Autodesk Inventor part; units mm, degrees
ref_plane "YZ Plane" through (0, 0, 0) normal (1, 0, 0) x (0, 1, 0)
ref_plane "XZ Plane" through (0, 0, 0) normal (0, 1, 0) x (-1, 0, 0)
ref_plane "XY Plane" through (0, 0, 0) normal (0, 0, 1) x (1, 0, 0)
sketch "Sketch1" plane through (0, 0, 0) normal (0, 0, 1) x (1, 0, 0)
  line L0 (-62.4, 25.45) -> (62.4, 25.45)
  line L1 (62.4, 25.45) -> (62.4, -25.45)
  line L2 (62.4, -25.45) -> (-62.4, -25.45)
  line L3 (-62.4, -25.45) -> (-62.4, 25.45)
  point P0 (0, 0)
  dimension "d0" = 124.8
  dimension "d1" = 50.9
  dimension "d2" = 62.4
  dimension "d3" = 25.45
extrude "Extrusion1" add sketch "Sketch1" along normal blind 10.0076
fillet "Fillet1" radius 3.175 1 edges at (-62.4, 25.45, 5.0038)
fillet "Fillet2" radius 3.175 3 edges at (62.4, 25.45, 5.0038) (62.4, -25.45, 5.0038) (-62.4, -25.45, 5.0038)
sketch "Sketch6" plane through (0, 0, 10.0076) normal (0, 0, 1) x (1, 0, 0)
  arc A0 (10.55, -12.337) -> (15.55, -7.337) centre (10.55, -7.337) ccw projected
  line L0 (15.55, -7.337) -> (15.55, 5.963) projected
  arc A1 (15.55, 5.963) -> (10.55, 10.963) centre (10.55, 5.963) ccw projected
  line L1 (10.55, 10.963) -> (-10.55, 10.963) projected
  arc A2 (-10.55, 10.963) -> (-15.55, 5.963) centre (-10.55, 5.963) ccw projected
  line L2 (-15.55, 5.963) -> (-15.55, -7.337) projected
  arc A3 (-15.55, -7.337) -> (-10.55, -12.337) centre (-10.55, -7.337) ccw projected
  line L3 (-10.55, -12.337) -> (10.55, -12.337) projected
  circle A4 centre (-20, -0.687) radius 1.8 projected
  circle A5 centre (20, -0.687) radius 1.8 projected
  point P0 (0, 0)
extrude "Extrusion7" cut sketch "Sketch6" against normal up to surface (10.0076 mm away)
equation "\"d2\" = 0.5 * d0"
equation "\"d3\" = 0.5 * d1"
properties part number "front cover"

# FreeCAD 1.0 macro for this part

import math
import FreeCAD as App
import Part
import Sketcher
from FreeCAD import Vector
Q = App.Units.Quantity


def edges_at(feature, points):
    """Names of the edges that pass closest to the given points."""
    edges = feature.Shape.Edges
    near = lambda p: min(range(len(edges)), key=lambda i: edges[i].distToShape(Part.Vertex(*p))[0])
    return sorted({f"Edge{near(p) + 1}" for p in points})


def add_polygon(sketch, points):
    """Adds a closed chain of lines whose ends are joined by coincident constraints."""
    first, n = sketch.GeometryCount, len(points)
    for a, b in zip(points, points[1:] + points[:1]):
        sketch.addGeometry(Part.LineSegment(App.Vector(*a, 0), App.Vector(*b, 0)), False)
    for i in range(n):
        sketch.addConstraint(Sketcher.Constraint("Coincident", first + i, 2, first + (i + 1) % n, 1))

doc = App.newDocument("Part")
body = doc.addObject("PartDesign::Body", "Body")

# Sketch on XY plane
sketch1 = body.newObject("Sketcher::SketchObject", "Sketch")
sketch1.AttachmentSupport = (doc.getObject("XY_Plane"), [""])
sketch1.MapMode = "FlatFace"
add_polygon(sketch1, [(62, 25), (-62, 25), (-62, -25), (62, -25)])  # lines 0-3
sketch1.addConstraint([
    Sketcher.Constraint("Horizontal", 0),
    Sketcher.Constraint("Vertical", 1),
    Sketcher.Constraint("Horizontal", 2),
    Sketcher.Constraint("Vertical", 3),
    Sketcher.Constraint("Symmetric", 0, 2, 2, 2, -1, 1),
    Sketcher.Constraint("DistanceX", 0, 2, 0, 1, Q("124.8 mm")),
    Sketcher.Constraint("DistanceY", 1, 2, 1, 1, Q("50.9 mm")),
])
pad1 = body.newObject("PartDesign::Pad", "Pad")
pad1.Profile = sketch1
pad1.Length = 10.0076
doc.recompute()

fillet = body.newObject("PartDesign::Fillet", "Fillet")
fillet.Base = (pad1, edges_at(pad1, [(-62.4, 25.45, 5.004)]))
fillet.Radius = 3.175
doc.recompute()

fillet2 = body.newObject("PartDesign::Fillet", "Fillet001")
fillet2.Base = (fillet, edges_at(fillet, [(62.4, 25.45, 5.004), (62.4, -25.45, 5.004), (-62.4, -25.45, 5.004)]))
fillet2.Radius = 3.175

# Sketch on XY plane
sketch2 = body.newObject("Sketcher::SketchObject", "Sketch001")
sketch2.AttachmentSupport = (doc.getObject("XY_Plane"), [""])
sketch2.MapMode = "FlatFace"
sketch2.AttachmentOffset = App.Placement(Vector(0, 0, 10.0076), App.Rotation())
sketch2.addGeometry([
    Part.LineSegment(Vector(-10.6, -12.3, 0), Vector(10.6, -12.3, 0)),  # 0
    Part.ArcOfCircle(Part.Circle(Vector(10.6, -7.3, 0), Vector(0, 0, 1), 5), math.radians(-90), math.radians(0)),  # 1
    Part.LineSegment(Vector(15.6, -7.3, 0), Vector(15.6, 6, 0)),  # 2
    Part.ArcOfCircle(Part.Circle(Vector(10.6, 6, 0), Vector(0, 0, 1), 5), math.radians(0), math.radians(90)),  # 3
    Part.LineSegment(Vector(10.6, 11, 0), Vector(-10.6, 11, 0)),  # 4
    Part.ArcOfCircle(Part.Circle(Vector(-10.6, 6, 0), Vector(0, 0, 1), 5), math.radians(90), math.radians(180)),  # 5
    Part.LineSegment(Vector(-15.6, 6, 0), Vector(-15.6, -7.3, 0)),  # 6
    Part.ArcOfCircle(Part.Circle(Vector(-10.6, -7.3, 0), Vector(0, 0, 1), 5), math.radians(180), math.radians(270)),  # 7
    Part.Circle(Vector(-20, -0.7, 0), Vector(0, 0, 1), 1.8),  # 8
    Part.Circle(Vector(20, -0.7, 0), Vector(0, 0, 1), 1.8),  # 9
], False)
sketch2.addConstraint([
    Sketcher.Constraint("Tangent", 0, 2, 1, 1),
    Sketcher.Constraint("Tangent", 1, 2, 2, 1),
    Sketcher.Constraint("Tangent", 2, 2, 3, 1),
    Sketcher.Constraint("Tangent", 3, 2, 4, 1),
    Sketcher.Constraint("Tangent", 4, 2, 5, 1),
    Sketcher.Constraint("Tangent", 5, 2, 6, 1),
    Sketcher.Constraint("Tangent", 6, 2, 7, 1),
    Sketcher.Constraint("Tangent", 7, 2, 0, 1),
    Sketcher.Constraint("Horizontal", 0),
    Sketcher.Constraint("Vertical", 2),
    Sketcher.Constraint("Horizontal", 4),
    Sketcher.Constraint("Vertical", 6),
    Sketcher.Constraint("Equal", 1, 3),
    Sketcher.Constraint("Equal", 3, 5),
    Sketcher.Constraint("Equal", 5, 7),
    Sketcher.Constraint("Equal", 8, 9),
    Sketcher.Constraint("Symmetric", 8, 3, 9, 3, -2),
    Sketcher.Constraint("Radius", 1, Q("5 mm")),
    Sketcher.Constraint("Diameter", 8, Q("3.6 mm")),
    Sketcher.Constraint("DistanceX", 0, 1, 0, 2, Q("21.1 mm")),
    Sketcher.Constraint("DistanceY", 2, 1, 2, 2, Q("13.3 mm")),
    Sketcher.Constraint("DistanceX", 8, 3, -1, 1, Q("20 mm")),
    Sketcher.Constraint("DistanceX", -1, 1, 1, 3, Q("10.55 mm")),
    Sketcher.Constraint("DistanceY", 8, 3, 5, 3, Q("6.65 mm")),
    Sketcher.Constraint("DistanceY", 1, 3, -1, 1, Q("7.337 mm")),
])
pocket1 = body.newObject("PartDesign::Pocket", "Pocket")
pocket1.Profile = sketch2
pocket1.Length = 10.0076

doc.recompute()
